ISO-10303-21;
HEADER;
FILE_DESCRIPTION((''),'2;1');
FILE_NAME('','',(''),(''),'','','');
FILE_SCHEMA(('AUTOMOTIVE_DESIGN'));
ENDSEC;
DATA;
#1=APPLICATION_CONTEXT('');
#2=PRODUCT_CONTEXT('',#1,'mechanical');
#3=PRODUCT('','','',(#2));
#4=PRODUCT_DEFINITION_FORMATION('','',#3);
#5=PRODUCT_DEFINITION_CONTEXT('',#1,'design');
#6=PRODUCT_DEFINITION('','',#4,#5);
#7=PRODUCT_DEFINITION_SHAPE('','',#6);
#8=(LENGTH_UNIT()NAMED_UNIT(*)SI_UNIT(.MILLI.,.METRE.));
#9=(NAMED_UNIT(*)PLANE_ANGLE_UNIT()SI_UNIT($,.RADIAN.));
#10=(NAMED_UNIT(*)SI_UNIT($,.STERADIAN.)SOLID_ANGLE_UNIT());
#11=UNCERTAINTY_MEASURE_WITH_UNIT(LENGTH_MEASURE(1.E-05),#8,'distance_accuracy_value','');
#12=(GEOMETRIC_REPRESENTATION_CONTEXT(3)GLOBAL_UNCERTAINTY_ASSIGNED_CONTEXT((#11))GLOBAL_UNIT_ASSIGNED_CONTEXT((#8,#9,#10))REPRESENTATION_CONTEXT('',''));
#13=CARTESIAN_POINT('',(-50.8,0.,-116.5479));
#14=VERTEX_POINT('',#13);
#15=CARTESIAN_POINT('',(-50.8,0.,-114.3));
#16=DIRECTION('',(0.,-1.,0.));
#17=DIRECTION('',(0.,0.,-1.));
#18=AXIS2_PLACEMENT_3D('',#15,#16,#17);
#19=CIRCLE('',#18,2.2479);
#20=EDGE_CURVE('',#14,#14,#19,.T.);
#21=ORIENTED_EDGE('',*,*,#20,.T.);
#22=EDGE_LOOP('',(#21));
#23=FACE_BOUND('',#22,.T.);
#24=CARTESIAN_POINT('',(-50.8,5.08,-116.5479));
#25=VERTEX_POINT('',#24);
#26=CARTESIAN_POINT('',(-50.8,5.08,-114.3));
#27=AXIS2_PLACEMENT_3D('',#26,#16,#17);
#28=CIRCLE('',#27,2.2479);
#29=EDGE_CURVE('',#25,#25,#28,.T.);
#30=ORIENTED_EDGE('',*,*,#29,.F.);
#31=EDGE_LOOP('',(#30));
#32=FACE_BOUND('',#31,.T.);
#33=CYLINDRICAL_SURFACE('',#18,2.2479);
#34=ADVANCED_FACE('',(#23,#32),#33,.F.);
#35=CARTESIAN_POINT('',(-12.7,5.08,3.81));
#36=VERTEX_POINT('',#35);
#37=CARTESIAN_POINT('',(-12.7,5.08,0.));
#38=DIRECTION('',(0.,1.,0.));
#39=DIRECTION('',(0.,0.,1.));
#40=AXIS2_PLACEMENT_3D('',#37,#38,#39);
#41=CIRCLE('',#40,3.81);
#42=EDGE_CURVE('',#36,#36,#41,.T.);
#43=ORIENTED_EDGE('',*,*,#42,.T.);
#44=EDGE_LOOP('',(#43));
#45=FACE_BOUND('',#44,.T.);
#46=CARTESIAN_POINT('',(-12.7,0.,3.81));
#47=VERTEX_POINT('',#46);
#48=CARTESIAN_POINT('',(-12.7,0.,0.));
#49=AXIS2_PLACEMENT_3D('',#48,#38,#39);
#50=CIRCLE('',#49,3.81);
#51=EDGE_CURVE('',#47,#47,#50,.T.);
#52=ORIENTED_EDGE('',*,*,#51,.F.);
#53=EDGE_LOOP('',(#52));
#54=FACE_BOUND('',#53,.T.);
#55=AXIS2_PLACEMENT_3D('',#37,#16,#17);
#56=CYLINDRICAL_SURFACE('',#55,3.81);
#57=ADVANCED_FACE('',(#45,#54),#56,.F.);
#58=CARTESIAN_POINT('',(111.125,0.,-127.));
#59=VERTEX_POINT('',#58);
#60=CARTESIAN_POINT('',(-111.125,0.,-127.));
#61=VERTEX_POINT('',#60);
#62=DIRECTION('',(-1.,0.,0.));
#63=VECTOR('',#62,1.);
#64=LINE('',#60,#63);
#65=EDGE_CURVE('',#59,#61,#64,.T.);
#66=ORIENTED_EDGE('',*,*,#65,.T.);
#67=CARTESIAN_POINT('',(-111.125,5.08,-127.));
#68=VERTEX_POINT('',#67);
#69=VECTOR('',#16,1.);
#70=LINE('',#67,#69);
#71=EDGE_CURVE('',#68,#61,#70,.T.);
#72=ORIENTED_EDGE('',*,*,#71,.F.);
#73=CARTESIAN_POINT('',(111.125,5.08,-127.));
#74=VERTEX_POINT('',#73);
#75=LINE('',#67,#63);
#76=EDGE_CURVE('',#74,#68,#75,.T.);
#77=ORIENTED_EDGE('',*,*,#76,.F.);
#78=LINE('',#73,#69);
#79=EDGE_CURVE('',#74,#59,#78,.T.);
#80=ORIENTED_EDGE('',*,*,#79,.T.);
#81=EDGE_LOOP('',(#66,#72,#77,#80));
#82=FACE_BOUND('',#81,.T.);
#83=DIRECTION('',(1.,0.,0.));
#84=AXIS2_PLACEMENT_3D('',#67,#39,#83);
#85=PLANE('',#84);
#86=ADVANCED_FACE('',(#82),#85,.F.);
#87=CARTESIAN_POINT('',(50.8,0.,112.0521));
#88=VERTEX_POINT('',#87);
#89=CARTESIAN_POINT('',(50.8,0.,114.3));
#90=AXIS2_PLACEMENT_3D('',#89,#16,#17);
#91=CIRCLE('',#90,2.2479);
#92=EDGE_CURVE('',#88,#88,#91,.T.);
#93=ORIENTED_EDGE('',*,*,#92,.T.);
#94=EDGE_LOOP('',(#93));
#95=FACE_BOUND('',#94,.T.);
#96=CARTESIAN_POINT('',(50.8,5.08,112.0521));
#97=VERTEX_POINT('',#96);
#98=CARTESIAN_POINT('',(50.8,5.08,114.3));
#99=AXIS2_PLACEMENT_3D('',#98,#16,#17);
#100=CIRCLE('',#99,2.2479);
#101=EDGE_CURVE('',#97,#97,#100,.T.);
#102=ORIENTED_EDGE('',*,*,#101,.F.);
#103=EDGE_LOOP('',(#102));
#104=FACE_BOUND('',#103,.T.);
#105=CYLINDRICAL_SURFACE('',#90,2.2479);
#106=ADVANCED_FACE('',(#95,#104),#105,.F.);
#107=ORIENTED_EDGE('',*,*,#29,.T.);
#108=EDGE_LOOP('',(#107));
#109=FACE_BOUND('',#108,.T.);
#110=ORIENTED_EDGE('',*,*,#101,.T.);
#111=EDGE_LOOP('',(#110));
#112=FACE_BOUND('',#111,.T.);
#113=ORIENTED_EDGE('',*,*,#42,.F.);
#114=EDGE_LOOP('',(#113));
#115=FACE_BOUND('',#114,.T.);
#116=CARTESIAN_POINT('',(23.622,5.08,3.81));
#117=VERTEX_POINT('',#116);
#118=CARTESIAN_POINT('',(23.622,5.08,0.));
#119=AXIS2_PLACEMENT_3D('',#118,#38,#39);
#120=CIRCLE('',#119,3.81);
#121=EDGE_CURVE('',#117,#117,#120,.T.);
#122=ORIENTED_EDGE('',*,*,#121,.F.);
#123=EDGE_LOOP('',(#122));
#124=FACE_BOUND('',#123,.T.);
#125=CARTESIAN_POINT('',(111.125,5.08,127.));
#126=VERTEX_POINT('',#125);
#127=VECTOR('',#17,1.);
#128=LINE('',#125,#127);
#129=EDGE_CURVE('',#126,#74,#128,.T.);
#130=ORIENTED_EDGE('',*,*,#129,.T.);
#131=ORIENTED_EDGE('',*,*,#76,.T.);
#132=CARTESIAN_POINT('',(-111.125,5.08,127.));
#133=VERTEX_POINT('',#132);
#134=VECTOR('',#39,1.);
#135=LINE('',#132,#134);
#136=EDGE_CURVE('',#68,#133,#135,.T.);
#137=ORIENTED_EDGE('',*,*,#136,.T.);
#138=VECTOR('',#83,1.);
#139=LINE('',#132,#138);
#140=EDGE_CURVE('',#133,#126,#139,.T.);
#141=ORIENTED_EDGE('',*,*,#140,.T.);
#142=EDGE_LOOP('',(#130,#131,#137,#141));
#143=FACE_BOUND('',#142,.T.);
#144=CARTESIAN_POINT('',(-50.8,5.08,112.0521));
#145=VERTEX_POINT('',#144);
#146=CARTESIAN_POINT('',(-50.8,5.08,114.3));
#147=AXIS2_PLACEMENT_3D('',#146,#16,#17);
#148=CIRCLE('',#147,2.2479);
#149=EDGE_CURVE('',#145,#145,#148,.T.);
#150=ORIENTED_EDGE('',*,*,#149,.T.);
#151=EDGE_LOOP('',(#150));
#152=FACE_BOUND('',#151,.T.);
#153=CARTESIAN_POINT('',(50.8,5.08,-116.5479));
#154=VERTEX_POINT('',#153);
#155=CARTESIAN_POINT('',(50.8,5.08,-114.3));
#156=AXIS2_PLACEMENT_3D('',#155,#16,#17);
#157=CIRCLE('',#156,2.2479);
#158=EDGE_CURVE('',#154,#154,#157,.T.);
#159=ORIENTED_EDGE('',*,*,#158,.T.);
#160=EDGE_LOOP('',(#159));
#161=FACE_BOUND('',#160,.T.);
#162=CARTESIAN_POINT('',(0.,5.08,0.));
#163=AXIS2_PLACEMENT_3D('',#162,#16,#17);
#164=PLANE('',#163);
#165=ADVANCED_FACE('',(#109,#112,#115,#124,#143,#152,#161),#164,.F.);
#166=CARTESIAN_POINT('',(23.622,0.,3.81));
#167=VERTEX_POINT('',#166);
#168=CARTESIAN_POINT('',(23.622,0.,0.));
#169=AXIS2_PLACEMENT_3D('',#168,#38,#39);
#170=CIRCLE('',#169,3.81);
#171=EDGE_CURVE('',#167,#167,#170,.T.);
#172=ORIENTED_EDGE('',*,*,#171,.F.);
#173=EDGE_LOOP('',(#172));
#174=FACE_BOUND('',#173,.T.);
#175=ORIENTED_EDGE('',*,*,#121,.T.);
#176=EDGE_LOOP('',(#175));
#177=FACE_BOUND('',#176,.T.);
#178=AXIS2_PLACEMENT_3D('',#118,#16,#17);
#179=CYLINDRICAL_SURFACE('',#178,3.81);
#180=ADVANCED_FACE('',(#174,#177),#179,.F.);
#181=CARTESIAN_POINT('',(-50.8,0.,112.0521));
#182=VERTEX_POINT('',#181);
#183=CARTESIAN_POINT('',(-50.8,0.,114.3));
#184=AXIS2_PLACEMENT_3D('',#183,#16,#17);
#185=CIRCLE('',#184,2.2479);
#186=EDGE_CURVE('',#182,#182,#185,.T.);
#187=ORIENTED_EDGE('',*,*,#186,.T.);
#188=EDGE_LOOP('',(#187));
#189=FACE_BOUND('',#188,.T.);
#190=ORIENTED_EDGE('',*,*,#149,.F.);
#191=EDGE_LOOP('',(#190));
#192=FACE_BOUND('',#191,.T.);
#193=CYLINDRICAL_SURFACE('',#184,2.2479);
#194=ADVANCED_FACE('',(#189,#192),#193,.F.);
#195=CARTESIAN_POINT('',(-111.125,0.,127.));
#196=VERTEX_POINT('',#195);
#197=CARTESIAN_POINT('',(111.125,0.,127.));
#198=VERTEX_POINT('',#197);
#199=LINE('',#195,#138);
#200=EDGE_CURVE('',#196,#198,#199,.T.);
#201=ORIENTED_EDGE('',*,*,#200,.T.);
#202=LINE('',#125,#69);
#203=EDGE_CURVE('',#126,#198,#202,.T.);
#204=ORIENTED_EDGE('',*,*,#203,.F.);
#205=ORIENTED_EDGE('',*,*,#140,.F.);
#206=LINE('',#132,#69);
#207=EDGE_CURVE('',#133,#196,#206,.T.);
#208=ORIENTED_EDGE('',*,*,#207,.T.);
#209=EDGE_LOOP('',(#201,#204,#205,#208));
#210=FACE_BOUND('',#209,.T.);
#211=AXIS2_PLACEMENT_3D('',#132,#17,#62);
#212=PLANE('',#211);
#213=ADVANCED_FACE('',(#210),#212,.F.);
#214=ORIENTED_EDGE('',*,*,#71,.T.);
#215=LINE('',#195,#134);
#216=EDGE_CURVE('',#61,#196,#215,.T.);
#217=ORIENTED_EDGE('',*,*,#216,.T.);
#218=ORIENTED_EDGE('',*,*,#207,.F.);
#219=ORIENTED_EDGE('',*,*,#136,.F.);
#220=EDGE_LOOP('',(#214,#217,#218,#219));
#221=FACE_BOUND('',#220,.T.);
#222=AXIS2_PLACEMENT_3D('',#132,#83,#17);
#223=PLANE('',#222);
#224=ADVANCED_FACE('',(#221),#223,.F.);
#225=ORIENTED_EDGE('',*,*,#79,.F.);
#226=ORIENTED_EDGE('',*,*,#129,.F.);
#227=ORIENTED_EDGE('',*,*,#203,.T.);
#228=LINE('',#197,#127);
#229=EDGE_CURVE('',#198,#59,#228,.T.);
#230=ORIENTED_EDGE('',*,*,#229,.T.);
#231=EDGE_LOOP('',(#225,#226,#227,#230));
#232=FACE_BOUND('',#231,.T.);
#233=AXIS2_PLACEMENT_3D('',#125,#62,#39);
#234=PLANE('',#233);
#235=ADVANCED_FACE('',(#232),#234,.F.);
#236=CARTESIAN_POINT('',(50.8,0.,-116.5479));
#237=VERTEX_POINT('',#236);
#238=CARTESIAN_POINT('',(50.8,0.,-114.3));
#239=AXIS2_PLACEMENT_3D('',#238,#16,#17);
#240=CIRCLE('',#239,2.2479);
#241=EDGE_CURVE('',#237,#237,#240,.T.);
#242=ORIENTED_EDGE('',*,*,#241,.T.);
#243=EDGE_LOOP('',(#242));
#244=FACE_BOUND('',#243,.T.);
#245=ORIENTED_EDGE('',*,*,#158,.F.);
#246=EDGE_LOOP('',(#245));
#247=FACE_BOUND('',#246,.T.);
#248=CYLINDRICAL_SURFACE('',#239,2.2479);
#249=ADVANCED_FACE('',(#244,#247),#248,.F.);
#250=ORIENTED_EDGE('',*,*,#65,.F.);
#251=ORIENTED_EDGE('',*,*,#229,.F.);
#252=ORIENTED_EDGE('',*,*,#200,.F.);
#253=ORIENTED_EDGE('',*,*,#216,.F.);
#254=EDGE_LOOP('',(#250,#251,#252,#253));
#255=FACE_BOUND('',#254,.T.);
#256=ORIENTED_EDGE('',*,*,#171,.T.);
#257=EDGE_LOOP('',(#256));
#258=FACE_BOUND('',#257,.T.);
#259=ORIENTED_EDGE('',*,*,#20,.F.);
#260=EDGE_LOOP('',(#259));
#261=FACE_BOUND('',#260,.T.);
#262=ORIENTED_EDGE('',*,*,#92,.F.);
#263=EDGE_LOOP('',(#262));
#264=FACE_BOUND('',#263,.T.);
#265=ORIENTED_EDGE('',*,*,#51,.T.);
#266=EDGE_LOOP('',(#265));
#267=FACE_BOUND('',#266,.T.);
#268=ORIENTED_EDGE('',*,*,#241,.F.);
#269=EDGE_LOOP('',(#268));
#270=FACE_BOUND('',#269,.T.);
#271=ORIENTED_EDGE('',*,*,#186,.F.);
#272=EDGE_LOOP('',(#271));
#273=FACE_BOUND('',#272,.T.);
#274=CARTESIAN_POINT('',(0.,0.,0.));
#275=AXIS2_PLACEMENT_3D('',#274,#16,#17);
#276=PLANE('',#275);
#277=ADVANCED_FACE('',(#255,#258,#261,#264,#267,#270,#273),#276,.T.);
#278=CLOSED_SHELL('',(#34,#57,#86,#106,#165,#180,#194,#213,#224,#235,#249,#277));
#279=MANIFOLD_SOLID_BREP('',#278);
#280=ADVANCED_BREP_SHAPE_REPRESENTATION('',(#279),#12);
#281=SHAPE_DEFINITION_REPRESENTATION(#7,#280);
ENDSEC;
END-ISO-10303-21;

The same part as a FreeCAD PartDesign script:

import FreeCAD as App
import Part
import Sketcher
from FreeCAD import Vector
Q = App.Units.Quantity

doc = App.newDocument("Part")
body = doc.addObject("PartDesign::Body", "Body")

# Sketch on XZ plane
sketch1 = body.newObject("Sketcher::SketchObject", "Sketch")
sketch1.AttachmentSupport = (doc.getObject("XZ_Plane"), [""])
sketch1.MapMode = "FlatFace"
sketch1.addGeometry(Part.LineSegment(Vector(-111, -127, 0), Vector(-111, 127, 0)), False)
sketch1.addGeometry(Part.LineSegment(Vector(-111, 127, 0), Vector(111, 127, 0)), False)
sketch1.addGeometry(Part.LineSegment(Vector(111, 127, 0), Vector(111, -127, 0)), False)
sketch1.addGeometry(Part.LineSegment(Vector(111, -127, 0), Vector(-111, -127, 0)), False)
sketch1.addConstraint(Sketcher.Constraint("Coincident", 0, 2, 1, 1))
sketch1.addConstraint(Sketcher.Constraint("Coincident", 1, 2, 2, 1))
sketch1.addConstraint(Sketcher.Constraint("Coincident", 2, 2, 3, 1))
sketch1.addConstraint(Sketcher.Constraint("Coincident", 3, 2, 0, 1))
sketch1.addConstraint(Sketcher.Constraint("Vertical", 0))
sketch1.addConstraint(Sketcher.Constraint("Horizontal", 1))
sketch1.addConstraint(Sketcher.Constraint("Vertical", 2))
sketch1.addConstraint(Sketcher.Constraint("Horizontal", 3))
sketch1.addConstraint(Sketcher.Constraint("Symmetric", 0, 2, 2, 2, -1, 1))
sketch1.addConstraint(Sketcher.Constraint("DistanceY", 0, 1, 0, 2, Q("10 in")))
sketch1.addConstraint(Sketcher.Constraint("DistanceX", 1, 1, 1, 2, Q("8.75 in")))
pad1 = body.newObject("PartDesign::Pad", "Pad")
pad1.Profile = sketch1
pad1.Length = Q("0.2 in")
pad1.Reversed = True

# Sketch on XZ plane
sketch2 = body.newObject("Sketcher::SketchObject", "Sketch001")
sketch2.AttachmentSupport = (doc.getObject("XZ_Plane"), [""])
sketch2.MapMode = "FlatFace"
sketch2.addGeometry(Part.Circle(Vector(-12.7, 0, 0), Vector(0, 0, 1), 3.8), False)
sketch2.addGeometry(Part.Circle(Vector(23.6, 0, 0), Vector(0, 0, 1), 3.8), False)
sketch2.addConstraint(Sketcher.Constraint("Equal", 0, 1))
sketch2.addConstraint(Sketcher.Constraint("PointOnObject", 0, 3, -1))
sketch2.addConstraint(Sketcher.Constraint("PointOnObject", 1, 3, -1))
sketch2.addConstraint(Sketcher.Constraint("Diameter", 0, Q("0.3 in")))
sketch2.addConstraint(Sketcher.Constraint("DistanceX", 0, 3, -1, 1, Q("0.5 in")))
sketch2.addConstraint(Sketcher.Constraint("DistanceX", -1, 1, 1, 3, Q("0.93 in")))
pocket1 = body.newObject("PartDesign::Pocket", "Pocket")
pocket1.Profile = sketch2
pocket1.Type = "ThroughAll"

# Sketch on XZ plane
sketch3 = body.newObject("Sketcher::SketchObject", "Sketch002")
sketch3.AttachmentSupport = (doc.getObject("XZ_Plane"), [""])
sketch3.MapMode = "FlatFace"
sketch3.addGeometry(Part.Circle(Vector(-50.8, 114.3, 0), Vector(0, 0, 1), 2.2), False)
sketch3.addGeometry(Part.Circle(Vector(50.8, 114.3, 0), Vector(0, 0, 1), 2.2), False)
sketch3.addGeometry(Part.Circle(Vector(50.8, -114.3, 0), Vector(0, 0, 1), 2.2), False)
sketch3.addGeometry(Part.Circle(Vector(-50.8, -114.3, 0), Vector(0, 0, 1), 2.2), False)
sketch3.addConstraint(Sketcher.Constraint("Equal", 0, 1))
sketch3.addConstraint(Sketcher.Constraint("Equal", 1, 2))
sketch3.addConstraint(Sketcher.Constraint("Equal", 2, 3))
sketch3.addConstraint(Sketcher.Constraint("Symmetric", 0, 3, 2, 3, -1, 1))
sketch3.addConstraint(Sketcher.Constraint("Symmetric", 1, 3, 3, 3, -1, 1))
sketch3.addConstraint(Sketcher.Constraint("Symmetric", 0, 3, 1, 3, -2))
sketch3.addConstraint(Sketcher.Constraint("Diameter", 0, Q("0.177 in")))
sketch3.addConstraint(Sketcher.Constraint("DistanceX", 0, 3, -1, 1, Q("2 in")))
sketch3.addConstraint(Sketcher.Constraint("DistanceY", 2, 3, 1, 3, Q("9 in")))
doc.recompute()
hole = body.newObject("PartDesign::Hole", "Hole")
hole.Profile = sketch3
hole.ThreadType = "None"
hole.Diameter = Q("0.177 in")
hole.DepthType = "ThroughAll"

doc.recompute()
